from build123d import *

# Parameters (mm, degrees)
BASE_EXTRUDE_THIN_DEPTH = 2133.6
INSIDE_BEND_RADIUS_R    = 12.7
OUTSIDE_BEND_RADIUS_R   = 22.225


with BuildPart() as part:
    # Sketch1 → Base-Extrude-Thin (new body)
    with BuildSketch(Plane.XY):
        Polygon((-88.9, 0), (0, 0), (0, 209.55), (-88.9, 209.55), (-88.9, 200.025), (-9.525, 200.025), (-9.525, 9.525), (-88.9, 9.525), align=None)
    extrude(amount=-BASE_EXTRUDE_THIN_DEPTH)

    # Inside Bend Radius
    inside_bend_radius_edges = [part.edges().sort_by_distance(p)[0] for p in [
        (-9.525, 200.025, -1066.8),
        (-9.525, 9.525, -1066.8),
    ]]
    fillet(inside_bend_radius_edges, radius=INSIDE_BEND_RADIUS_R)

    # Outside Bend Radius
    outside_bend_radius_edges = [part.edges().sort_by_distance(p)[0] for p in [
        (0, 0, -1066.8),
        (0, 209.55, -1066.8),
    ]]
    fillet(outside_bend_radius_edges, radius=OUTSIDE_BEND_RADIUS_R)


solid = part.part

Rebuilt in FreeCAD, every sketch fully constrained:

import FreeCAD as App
import Part
import Sketcher
Q = App.Units.Quantity


def edges_at(feature, points):
    """Names of the edges that pass closest to the given points."""
    edges = feature.Shape.Edges
    near = lambda p: min(range(len(edges)), key=lambda i: edges[i].distToShape(Part.Vertex(*p))[0])
    return sorted({f"Edge{near(p) + 1}" for p in points})

doc = App.newDocument("Part")
body = doc.addObject("PartDesign::Body", "Body")

# Sketch on XY plane
sketch1 = body.newObject("Sketcher::SketchObject", "Sketch")
sketch1.AttachmentSupport = (doc.getObject("XY_Plane"), [""])
sketch1.MapMode = "FlatFace"
sketch1.addGeometry([
    Part.LineSegment(App.Vector(-89, 0, 0), App.Vector(0, 0, 0)),  # 0
    Part.LineSegment(App.Vector(0, 0, 0), App.Vector(0, 210, 0)),  # 1
    Part.LineSegment(App.Vector(0, 210, 0), App.Vector(-89, 210, 0)),  # 2
    Part.LineSegment(App.Vector(-89, 210, 0), App.Vector(-89, 200, 0)),  # 3
    Part.LineSegment(App.Vector(-89, 200, 0), App.Vector(-10, 200, 0)),  # 4
    Part.LineSegment(App.Vector(-10, 200, 0), App.Vector(-10, 10, 0)),  # 5
    Part.LineSegment(App.Vector(-10, 10, 0), App.Vector(-89, 10, 0)),  # 6
    Part.LineSegment(App.Vector(-89, 10, 0), App.Vector(-89, 0, 0)),  # 7
], False)
sketch1.addConstraint([
    Sketcher.Constraint("Coincident", 0, 2, 1, 1),
    Sketcher.Constraint("Coincident", 1, 2, 2, 1),
    Sketcher.Constraint("Coincident", 2, 2, 3, 1),
    Sketcher.Constraint("Coincident", 3, 2, 4, 1),
    Sketcher.Constraint("Coincident", 4, 2, 5, 1),
    Sketcher.Constraint("Coincident", 5, 2, 6, 1),
    Sketcher.Constraint("Coincident", 6, 2, 7, 1),
    Sketcher.Constraint("Coincident", 7, 2, 0, 1),
    Sketcher.Constraint("Horizontal", 0),
    Sketcher.Constraint("Vertical", 1),
    Sketcher.Constraint("Horizontal", 2),
    Sketcher.Constraint("Vertical", 3),
    Sketcher.Constraint("Horizontal", 4),
    Sketcher.Constraint("Vertical", 5),
    Sketcher.Constraint("Horizontal", 6),
    Sketcher.Constraint("Vertical", 7),
    Sketcher.Constraint("Coincident", 0, 2, -1, 1),
    Sketcher.Constraint("Vertical", 3, 2, 6, 2),
    Sketcher.Constraint("Equal", 3, 7),
    Sketcher.Constraint("DistanceX", 0, 1, 0, 2, Q("3.5 in")),
    Sketcher.Constraint("DistanceY", 5, 2, 5, 1, Q("7.5 in")),
    Sketcher.Constraint("DistanceY", 1, 1, 1, 2, Q("8.25 in")),
    Sketcher.Constraint("DistanceX", 4, 1, 4, 2, Q("3.125 in")),
])
pad1 = body.newObject("PartDesign::Pad", "Pad")
pad1.Profile = sketch1
pad1.Length = Q("84 in")
pad1.Reversed = True
doc.recompute()

fillet = body.newObject("PartDesign::Fillet", "Fillet")
fillet.Base = (pad1, edges_at(pad1, [(-9.525, 200.025, -1066.8), (-9.525, 9.525, -1066.8)]))
fillet.Radius = Q("0.5 in")
doc.recompute()

fillet2 = body.newObject("PartDesign::Fillet", "Fillet001")
fillet2.Base = (fillet, edges_at(fillet, [(0, 0, -1066.8), (0, 209.55, -1066.8)]))
fillet2.Radius = Q("0.875 in")

doc.recompute()
